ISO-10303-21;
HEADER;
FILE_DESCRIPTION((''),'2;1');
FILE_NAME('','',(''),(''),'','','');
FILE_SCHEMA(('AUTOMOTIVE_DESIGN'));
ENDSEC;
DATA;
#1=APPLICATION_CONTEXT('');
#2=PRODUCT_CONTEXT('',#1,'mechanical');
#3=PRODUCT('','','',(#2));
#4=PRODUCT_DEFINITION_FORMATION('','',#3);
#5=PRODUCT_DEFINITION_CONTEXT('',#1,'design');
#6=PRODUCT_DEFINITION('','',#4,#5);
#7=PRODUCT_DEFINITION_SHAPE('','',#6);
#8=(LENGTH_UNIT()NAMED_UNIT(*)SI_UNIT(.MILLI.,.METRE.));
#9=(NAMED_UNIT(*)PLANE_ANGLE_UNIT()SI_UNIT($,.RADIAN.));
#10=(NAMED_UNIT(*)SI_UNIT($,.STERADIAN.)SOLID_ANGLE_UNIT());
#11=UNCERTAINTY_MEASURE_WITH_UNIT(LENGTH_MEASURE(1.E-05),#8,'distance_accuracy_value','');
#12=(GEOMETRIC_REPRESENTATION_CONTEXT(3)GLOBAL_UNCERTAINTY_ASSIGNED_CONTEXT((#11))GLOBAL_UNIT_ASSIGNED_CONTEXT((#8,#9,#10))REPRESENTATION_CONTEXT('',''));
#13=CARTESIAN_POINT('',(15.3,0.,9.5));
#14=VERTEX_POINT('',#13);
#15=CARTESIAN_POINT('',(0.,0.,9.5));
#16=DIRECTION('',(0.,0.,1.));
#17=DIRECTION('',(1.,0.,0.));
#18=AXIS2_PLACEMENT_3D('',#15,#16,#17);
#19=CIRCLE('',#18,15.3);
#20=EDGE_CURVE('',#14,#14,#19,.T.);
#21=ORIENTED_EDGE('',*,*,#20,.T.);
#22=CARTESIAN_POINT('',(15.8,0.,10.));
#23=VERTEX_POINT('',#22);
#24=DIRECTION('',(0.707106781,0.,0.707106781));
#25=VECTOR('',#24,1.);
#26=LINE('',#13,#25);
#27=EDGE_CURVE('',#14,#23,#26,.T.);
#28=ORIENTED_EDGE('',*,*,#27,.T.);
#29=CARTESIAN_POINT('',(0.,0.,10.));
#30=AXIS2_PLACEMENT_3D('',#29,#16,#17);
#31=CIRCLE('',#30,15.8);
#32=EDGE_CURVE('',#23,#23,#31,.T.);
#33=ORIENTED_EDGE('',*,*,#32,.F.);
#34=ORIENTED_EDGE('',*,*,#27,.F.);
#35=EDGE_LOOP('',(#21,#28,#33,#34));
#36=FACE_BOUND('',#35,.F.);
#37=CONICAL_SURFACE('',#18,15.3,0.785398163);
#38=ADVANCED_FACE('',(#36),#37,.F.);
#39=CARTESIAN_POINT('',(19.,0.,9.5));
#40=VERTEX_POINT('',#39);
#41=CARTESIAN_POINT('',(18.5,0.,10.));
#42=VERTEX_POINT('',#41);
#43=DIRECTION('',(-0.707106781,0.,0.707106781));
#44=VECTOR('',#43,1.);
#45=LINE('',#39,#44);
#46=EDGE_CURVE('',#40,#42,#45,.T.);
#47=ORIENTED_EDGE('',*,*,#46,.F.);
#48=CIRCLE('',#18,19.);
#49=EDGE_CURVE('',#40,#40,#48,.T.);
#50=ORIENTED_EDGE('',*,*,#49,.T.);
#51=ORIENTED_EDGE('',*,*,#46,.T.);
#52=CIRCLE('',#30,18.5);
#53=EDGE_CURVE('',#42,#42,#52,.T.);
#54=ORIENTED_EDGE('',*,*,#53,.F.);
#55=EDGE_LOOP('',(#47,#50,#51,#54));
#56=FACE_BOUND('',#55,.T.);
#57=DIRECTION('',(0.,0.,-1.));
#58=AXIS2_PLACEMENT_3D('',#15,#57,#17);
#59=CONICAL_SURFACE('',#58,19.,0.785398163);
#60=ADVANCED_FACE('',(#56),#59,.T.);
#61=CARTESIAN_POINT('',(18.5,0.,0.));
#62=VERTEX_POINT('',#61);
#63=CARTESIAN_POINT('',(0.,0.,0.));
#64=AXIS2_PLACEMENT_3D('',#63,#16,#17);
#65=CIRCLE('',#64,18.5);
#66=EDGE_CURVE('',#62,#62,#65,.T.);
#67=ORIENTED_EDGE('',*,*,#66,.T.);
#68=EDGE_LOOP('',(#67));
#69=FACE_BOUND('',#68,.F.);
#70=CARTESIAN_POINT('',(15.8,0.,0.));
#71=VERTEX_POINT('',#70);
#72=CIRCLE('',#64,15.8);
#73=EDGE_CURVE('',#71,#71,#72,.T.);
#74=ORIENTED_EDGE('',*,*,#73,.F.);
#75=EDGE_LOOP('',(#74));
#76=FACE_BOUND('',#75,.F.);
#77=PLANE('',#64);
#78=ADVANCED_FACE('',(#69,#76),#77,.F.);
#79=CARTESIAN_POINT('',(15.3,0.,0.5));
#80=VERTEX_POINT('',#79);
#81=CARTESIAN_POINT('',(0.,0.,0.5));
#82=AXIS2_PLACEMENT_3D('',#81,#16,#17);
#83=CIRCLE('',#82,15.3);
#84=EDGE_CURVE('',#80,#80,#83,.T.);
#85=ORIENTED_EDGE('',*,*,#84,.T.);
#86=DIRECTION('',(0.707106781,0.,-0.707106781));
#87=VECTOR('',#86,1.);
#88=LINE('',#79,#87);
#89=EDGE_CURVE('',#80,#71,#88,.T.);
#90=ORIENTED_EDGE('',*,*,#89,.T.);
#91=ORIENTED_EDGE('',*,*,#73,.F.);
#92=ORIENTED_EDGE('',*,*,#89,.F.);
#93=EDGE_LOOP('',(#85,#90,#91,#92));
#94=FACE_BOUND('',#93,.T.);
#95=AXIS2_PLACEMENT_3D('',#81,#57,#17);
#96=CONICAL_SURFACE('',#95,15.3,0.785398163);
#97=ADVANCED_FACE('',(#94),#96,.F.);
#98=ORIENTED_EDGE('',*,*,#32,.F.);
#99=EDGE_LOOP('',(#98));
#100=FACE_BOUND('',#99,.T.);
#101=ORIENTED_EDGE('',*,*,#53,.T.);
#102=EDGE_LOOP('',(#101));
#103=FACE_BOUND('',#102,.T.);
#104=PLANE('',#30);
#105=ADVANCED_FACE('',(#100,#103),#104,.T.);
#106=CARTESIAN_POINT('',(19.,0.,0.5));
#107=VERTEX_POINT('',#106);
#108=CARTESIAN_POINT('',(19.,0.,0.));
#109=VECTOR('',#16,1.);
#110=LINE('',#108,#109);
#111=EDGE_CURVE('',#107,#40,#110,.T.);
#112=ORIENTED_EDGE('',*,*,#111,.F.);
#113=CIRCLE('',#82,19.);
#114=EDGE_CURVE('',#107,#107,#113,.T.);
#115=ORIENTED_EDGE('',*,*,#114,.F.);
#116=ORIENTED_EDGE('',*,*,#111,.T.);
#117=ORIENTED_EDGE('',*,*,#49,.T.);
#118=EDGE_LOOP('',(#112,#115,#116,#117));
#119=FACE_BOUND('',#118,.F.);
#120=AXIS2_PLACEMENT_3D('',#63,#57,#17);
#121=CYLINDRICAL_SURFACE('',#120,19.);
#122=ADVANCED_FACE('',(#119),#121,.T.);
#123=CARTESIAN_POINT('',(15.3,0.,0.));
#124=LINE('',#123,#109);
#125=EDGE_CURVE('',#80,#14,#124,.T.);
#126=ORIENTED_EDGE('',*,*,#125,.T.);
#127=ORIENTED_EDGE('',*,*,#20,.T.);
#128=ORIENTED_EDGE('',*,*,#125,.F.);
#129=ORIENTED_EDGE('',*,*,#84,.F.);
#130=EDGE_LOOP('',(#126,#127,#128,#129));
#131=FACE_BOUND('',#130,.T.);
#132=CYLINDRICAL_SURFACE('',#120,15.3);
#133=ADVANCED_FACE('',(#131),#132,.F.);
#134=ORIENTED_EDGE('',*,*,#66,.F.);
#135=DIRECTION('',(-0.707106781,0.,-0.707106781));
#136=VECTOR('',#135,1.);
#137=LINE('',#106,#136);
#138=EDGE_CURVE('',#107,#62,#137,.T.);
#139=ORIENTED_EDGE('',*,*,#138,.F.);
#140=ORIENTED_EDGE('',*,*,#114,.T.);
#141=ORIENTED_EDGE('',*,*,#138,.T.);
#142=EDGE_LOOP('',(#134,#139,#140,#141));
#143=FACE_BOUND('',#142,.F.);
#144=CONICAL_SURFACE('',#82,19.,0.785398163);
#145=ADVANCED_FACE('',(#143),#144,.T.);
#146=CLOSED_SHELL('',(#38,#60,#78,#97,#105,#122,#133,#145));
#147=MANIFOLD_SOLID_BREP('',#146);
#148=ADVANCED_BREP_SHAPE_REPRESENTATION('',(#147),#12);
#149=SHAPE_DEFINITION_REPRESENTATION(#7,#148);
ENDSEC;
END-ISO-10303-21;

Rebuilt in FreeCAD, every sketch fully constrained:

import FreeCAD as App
import Part
import Sketcher
from FreeCAD import Vector
Q = App.Units.Quantity


def edges_at(feature, points):
    """Names of the edges that pass closest to the given points."""
    edges = feature.Shape.Edges
    near = lambda p: min(range(len(edges)), key=lambda i: edges[i].distToShape(Part.Vertex(*p))[0])
    return sorted({f"Edge{near(p) + 1}" for p in points})

doc = App.newDocument("Part")
body = doc.addObject("PartDesign::Body", "Body")

sketch1 = body.newObject("Sketcher::SketchObject", "Sketch")
sketch1.AttachmentSupport = (doc.getObject("XY_Plane"), [""])
sketch1.MapMode = "FlatFace"
sketch1.addGeometry([
    Part.Circle(Vector(0, 0, 0), Vector(0, 0, 1), 19),
    Part.Circle(Vector(0, 0, 0), Vector(0, 0, 1), 15),
], False)
sketch1.addConstraint([
    Sketcher.Constraint("Coincident", 0, 3, -1, 1),
    Sketcher.Constraint("Coincident", 1, 3, -1, 1),
    Sketcher.Constraint("Diameter", 0, Q("38 mm")),
    Sketcher.Constraint("Diameter", 1, Q("30.6 mm")),
])
pad1 = body.newObject("PartDesign::Pad", "Pad")
pad1.Profile = sketch1
pad1.Length = 10
doc.recompute()

chamfer = body.newObject("PartDesign::Chamfer", "Chamfer")
chamfer.Base = (pad1, edges_at(pad1, [
    (-15.3, 0, 10),
    (-19, 0, 10),
    (-15.3, 0, 0),
    (-19, 0, 0),
]))
chamfer.Size = 0.5

doc.recompute()
